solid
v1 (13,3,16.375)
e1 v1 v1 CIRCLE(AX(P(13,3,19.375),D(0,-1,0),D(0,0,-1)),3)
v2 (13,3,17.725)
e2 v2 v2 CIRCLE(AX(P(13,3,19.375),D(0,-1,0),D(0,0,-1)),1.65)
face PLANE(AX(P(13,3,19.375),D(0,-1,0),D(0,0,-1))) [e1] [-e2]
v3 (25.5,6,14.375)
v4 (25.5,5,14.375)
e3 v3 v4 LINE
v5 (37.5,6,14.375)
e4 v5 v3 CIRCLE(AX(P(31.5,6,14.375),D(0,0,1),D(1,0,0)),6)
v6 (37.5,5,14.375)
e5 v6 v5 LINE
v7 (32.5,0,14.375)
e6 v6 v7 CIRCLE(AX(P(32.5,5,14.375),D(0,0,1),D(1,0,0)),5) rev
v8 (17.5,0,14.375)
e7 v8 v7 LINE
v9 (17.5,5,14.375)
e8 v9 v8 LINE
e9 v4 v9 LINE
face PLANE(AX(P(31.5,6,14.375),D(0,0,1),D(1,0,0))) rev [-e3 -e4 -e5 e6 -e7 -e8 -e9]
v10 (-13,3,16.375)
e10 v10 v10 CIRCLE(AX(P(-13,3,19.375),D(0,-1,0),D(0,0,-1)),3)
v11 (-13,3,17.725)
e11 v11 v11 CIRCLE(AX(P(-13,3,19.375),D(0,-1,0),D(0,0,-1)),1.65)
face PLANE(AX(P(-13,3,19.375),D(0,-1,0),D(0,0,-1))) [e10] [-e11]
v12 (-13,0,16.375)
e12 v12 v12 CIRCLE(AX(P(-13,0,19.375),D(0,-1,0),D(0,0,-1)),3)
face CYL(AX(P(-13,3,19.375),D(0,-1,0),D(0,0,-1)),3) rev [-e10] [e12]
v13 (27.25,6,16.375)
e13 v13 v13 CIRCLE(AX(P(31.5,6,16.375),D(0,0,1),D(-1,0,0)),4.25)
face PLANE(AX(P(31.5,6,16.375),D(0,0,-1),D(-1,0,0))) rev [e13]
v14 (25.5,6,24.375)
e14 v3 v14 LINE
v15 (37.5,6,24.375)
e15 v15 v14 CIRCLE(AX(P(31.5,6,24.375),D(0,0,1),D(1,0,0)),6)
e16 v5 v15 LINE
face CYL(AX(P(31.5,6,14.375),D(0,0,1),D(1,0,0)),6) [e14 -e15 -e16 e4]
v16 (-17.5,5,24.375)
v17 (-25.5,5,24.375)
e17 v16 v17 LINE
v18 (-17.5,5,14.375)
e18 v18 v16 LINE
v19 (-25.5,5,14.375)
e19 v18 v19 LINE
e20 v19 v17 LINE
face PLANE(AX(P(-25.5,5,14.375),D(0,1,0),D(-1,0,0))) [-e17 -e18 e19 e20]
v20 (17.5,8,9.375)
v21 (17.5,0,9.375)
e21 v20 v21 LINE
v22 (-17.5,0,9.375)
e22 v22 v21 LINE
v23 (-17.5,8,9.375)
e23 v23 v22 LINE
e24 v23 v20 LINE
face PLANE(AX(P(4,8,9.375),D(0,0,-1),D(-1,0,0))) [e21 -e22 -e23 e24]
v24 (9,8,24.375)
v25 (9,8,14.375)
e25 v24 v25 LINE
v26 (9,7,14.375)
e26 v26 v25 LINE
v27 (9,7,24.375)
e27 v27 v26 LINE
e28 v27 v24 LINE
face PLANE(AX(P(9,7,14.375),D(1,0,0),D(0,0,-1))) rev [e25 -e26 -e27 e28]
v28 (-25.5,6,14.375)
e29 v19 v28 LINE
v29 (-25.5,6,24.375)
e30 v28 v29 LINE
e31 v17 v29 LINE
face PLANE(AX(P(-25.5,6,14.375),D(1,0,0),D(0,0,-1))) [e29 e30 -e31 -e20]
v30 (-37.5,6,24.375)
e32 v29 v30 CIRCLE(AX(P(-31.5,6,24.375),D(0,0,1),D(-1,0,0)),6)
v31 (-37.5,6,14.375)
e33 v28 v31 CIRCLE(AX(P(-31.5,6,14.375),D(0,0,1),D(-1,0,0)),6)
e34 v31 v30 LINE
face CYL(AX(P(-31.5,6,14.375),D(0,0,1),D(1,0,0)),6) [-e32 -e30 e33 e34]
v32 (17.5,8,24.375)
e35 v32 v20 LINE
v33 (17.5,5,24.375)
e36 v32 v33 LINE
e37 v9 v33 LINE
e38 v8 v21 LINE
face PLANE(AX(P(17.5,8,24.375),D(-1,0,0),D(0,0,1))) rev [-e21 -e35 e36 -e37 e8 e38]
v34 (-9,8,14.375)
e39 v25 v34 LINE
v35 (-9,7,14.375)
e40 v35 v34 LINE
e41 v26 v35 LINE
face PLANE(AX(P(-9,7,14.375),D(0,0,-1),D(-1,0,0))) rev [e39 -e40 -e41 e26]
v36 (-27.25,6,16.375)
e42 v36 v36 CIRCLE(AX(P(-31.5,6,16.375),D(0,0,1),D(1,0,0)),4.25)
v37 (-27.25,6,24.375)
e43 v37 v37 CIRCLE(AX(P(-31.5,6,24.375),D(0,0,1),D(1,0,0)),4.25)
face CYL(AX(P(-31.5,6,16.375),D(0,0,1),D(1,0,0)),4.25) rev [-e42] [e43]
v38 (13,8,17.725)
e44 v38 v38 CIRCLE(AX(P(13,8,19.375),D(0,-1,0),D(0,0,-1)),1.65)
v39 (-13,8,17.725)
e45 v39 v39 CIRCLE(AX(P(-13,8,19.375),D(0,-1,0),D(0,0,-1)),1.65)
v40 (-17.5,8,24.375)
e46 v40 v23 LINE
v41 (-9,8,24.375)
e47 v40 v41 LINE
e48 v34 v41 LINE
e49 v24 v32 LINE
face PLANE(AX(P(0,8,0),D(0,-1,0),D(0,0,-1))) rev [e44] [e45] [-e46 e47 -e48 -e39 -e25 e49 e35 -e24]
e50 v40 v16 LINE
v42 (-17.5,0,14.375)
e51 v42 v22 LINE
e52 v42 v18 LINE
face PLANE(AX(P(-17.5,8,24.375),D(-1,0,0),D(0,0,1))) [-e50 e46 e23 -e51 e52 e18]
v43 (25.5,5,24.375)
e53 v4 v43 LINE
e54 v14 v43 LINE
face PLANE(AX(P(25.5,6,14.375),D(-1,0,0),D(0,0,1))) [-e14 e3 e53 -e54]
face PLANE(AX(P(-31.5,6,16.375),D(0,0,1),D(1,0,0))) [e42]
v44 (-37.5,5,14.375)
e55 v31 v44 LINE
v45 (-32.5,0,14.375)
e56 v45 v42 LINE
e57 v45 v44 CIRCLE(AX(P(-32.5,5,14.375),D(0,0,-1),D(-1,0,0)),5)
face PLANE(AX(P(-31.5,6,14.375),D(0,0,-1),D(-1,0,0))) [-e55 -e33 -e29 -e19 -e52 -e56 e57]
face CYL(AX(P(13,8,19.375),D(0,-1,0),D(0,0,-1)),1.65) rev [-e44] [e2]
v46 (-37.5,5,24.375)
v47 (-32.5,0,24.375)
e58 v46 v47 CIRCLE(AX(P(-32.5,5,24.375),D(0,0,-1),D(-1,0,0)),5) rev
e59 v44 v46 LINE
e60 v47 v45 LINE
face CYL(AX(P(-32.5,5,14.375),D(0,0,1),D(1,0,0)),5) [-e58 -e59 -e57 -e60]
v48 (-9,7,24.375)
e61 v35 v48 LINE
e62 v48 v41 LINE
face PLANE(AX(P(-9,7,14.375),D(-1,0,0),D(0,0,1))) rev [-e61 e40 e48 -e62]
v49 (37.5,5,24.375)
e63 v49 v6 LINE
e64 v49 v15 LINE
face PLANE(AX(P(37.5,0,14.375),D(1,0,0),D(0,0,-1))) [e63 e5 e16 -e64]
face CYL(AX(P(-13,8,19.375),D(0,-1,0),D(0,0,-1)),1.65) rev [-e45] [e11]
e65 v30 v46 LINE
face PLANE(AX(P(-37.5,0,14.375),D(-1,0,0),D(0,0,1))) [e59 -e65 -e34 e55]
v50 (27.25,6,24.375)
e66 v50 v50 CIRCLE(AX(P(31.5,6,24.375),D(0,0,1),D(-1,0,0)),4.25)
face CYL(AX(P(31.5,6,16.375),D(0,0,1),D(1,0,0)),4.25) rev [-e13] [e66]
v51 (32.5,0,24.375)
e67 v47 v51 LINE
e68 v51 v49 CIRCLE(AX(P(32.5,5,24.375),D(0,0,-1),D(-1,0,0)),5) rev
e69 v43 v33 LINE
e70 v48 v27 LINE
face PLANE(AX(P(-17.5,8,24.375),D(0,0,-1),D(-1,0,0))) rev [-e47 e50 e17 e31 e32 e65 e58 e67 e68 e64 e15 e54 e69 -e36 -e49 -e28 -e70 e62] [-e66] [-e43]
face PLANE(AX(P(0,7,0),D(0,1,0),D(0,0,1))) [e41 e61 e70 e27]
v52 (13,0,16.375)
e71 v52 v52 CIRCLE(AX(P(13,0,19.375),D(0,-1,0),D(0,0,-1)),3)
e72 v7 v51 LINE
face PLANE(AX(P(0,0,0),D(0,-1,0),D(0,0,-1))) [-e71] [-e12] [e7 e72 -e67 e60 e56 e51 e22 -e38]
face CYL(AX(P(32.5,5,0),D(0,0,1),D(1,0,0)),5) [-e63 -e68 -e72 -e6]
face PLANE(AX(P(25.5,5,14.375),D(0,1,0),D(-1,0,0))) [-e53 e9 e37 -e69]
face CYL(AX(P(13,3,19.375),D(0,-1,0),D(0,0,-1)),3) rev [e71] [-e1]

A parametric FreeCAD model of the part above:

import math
import FreeCAD as App
import Part
import Sketcher

V = App.Vector
Q = App.Units.Quantity


def edges_at(feature, points):
    """Names of the edges that pass closest to the given points."""
    edges = feature.Shape.Edges
    near = lambda p: min(range(len(edges)), key=lambda i: edges[i].distToShape(Part.Vertex(*p))[0])
    return sorted({f"Edge{near(p) + 1}" for p in points})

doc = App.newDocument("Part")
body = doc.addObject("PartDesign::Body", "Body")

# Sketch on XZ plane
sketch1 = doc.addObject("Sketcher::SketchObject", "Sketch")
body.addObject(sketch1)
sketch1.AttachmentSupport = (doc.XZ_Plane, [""])
sketch1.MapMode = "FlatFace"
sketch1.addGeometry(Part.LineSegment(V(-8.5, -1.4, 0), V(-8.5, 1.4, 0)), False)
sketch1.addGeometry(Part.LineSegment(V(-8.5, 1.4, 0), V(8.5, 1.4, 0)), False)
sketch1.addGeometry(Part.LineSegment(V(8.5, 1.4, 0), V(8.5, -1.4, 0)), False)
sketch1.addGeometry(Part.LineSegment(V(8.5, -1.4, 0), V(-8.5, -1.4, 0)), False)
sketch1.addConstraint(Sketcher.Constraint("Coincident", 0, 2, 1, 1))
sketch1.addConstraint(Sketcher.Constraint("Coincident", 1, 2, 2, 1))
sketch1.addConstraint(Sketcher.Constraint("Coincident", 2, 2, 3, 1))
sketch1.addConstraint(Sketcher.Constraint("Coincident", 3, 2, 0, 1))
sketch1.addConstraint(Sketcher.Constraint("Vertical", 0))
sketch1.addConstraint(Sketcher.Constraint("Horizontal", 1))
sketch1.addConstraint(Sketcher.Constraint("Vertical", 2))
sketch1.addConstraint(Sketcher.Constraint("Horizontal", 3))
sketch1.addConstraint(Sketcher.Constraint("Symmetric", 0, 2, 2, 2, -1, 1))
sketch1.addConstraint(Sketcher.Constraint("DistanceX", 1, 1, 1, 2, Q("17 mm")))
sketch1.addConstraint(Sketcher.Constraint("DistanceY", 0, 1, 0, 2, Q("2.75 mm")))
pad1 = doc.addObject("PartDesign::Pad", "Pad")
body.addObject(pad1)
pad1.Profile = sketch1
pad1.Length = 8
pad1.Reversed = True

# Sketch on XZ plane
sketch2 = doc.addObject("Sketcher::SketchObject", "Sketch001")
body.addObject(sketch2)
sketch2.AttachmentSupport = (doc.XZ_Plane, [""])
sketch2.MapMode = "FlatFace"
sketch2.addGeometry(Part.LineSegment(V(18, 9, 0), V(4, 9, 0)), False)
sketch2.addGeometry(Part.LineSegment(V(4, 9, 0), V(4, 1, 0)), False)
sketch2.addGeometry(Part.LineSegment(V(4, 1, 0), V(-4, 1, 0)), False)
sketch2.addGeometry(Part.LineSegment(V(-4, 1, 0), V(-4, 9, 0)), False)
sketch2.addGeometry(Part.LineSegment(V(-4, 9, 0), V(-18, 9, 0)), False)
sketch2.addGeometry(Part.LineSegment(V(-18, 9, 0), V(-18, 24, 0)), False)
sketch2.addGeometry(Part.LineSegment(V(-18, 24, 0), V(18, 24, 0)), False)
sketch2.addGeometry(Part.LineSegment(V(18, 24, 0), V(18, 9, 0)), False)
sketch2.addConstraint(Sketcher.Constraint("Coincident", 0, 2, 1, 1))
sketch2.addConstraint(Sketcher.Constraint("Coincident", 1, 2, 2, 1))
sketch2.addConstraint(Sketcher.Constraint("Coincident", 2, 2, 3, 1))
sketch2.addConstraint(Sketcher.Constraint("Coincident", 3, 2, 4, 1))
sketch2.addConstraint(Sketcher.Constraint("Coincident", 4, 2, 5, 1))
sketch2.addConstraint(Sketcher.Constraint("Coincident", 5, 2, 6, 1))
sketch2.addConstraint(Sketcher.Constraint("Coincident", 6, 2, 7, 1))
sketch2.addConstraint(Sketcher.Constraint("Coincident", 7, 2, 0, 1))
sketch2.addConstraint(Sketcher.Constraint("Horizontal", 0))
sketch2.addConstraint(Sketcher.Constraint("Vertical", 1))
sketch2.addConstraint(Sketcher.Constraint("Horizontal", 2))
sketch2.addConstraint(Sketcher.Constraint("Vertical", 3))
sketch2.addConstraint(Sketcher.Constraint("Horizontal", 4))
sketch2.addConstraint(Sketcher.Constraint("Vertical", 5))
sketch2.addConstraint(Sketcher.Constraint("Horizontal", 6))
sketch2.addConstraint(Sketcher.Constraint("Vertical", 7))
sketch2.addConstraint(Sketcher.Constraint("Symmetric", 0, 2, 3, 2, -2))
sketch2.addConstraint(Sketcher.Constraint("Equal", 0, 4))
sketch2.addConstraint(Sketcher.Constraint("Equal", 2, 1))
sketch2.addConstraint(Sketcher.Constraint("DistanceX", 2, 2, 2, 1, Q("8 mm")))
sketch2.addConstraint(Sketcher.Constraint("DistanceX", 6, 1, 6, 2, Q("35 mm")))
sketch2.addConstraint(Sketcher.Constraint("DistanceY", 5, 1, 5, 2, Q("15 mm")))
sketch2.addConstraint(Sketcher.Constraint("DistanceY", -1, 1, 0, 2, Q("9.375 mm")))
pad2 = doc.addObject("PartDesign::Pad", "Pad001")
body.addObject(pad2)
pad2.Profile = sketch2
pad2.Length = 8
pad2.Reversed = True

# Sketch on XZ plane
sketch3 = doc.addObject("Sketcher::SketchObject", "Sketch002")
body.addObject(sketch3)
sketch3.AttachmentSupport = (doc.XZ_Plane, [""])
sketch3.MapMode = "FlatFace"
sketch3.addGeometry(Part.Circle(V(13, 19.4, 0), V(0, 0, 1), 3), False)
sketch3.addGeometry(Part.Circle(V(-13, 19.4, 0), V(0, 0, 1), 3), False)
sketch3.addConstraint(Sketcher.Constraint("Equal", 0, 1))
sketch3.addConstraint(Sketcher.Constraint("Symmetric", 0, 3, 1, 3, -2))
sketch3.addConstraint(Sketcher.Constraint("Diameter", 0, Q("6 mm")))
sketch3.addConstraint(Sketcher.Constraint("DistanceX", -1, 1, 0, 3, Q("13 mm")))
sketch3.addConstraint(Sketcher.Constraint("DistanceY", -1, 1, 0, 3, Q("19.375 mm")))
pocket1 = doc.addObject("PartDesign::Pocket", "Pocket")
body.addObject(pocket1)
pocket1.Profile = sketch3
pocket1.Length = 3

# Sketch on XZ plane
sketch4 = doc.addObject("Sketcher::SketchObject", "Sketch003")
body.addObject(sketch4)
sketch4.AttachmentSupport = (doc.XZ_Plane, [""])
sketch4.MapMode = "FlatFace"
sketch4.addGeometry(Part.Circle(V(-13, 19.4, 0), V(0, 0, 1), 1.6), False)
sketch4.addGeometry(Part.Circle(V(13, 19.4, 0), V(0, 0, 1), 1.6), False)
sketch4.addConstraint(Sketcher.Constraint("Equal", 0, 1))
sketch4.addConstraint(Sketcher.Constraint("Symmetric", 0, 3, 1, 3, -2))
sketch4.addConstraint(Sketcher.Constraint("Diameter", 0, Q("3.3 mm")))
sketch4.addConstraint(Sketcher.Constraint("DistanceX", 0, 3, -1, 1, Q("13 mm")))
sketch4.addConstraint(Sketcher.Constraint("DistanceY", -1, 1, 0, 3, Q("19.375 mm")))
pocket2 = doc.addObject("PartDesign::Pocket", "Pocket001")
body.addObject(pocket2)
pocket2.Profile = sketch4
pocket2.Length = 8
doc.recompute()

fillet = doc.addObject("PartDesign::Fillet", "Fillet")
body.addObject(fillet)
fillet.Base = (pocket2, edges_at(pocket2, [(-4, 4, 9.375)]))
fillet.Radius = 2
doc.recompute()

fillet2 = doc.addObject("PartDesign::Fillet", "Fillet001")
body.addObject(fillet2)
fillet2.Base = (fillet, edges_at(fillet, [(4, 4, 9.375)]))
fillet2.Radius = 2
doc.recompute()

fillet3 = doc.addObject("PartDesign::Fillet", "Fillet002")
body.addObject(fillet3)
fillet3.Base = (fillet2, edges_at(fillet2, [(-4, 4, 1.375)]))
fillet3.Radius = 2

# Sketch on XZ plane
sketch5 = doc.addObject("Sketcher::SketchObject", "Sketch004")
body.addObject(sketch5)
sketch5.AttachmentSupport = (doc.XZ_Plane, [""])
sketch5.MapMode = "FlatFace"
sketch5.AttachmentOffset = App.Placement(V(0, 0, -8), App.Rotation())
sketch5.addGeometry(Part.LineSegment(V(-9, 14, 0), V(-9, 24, 0)), False)
sketch5.addGeometry(Part.LineSegment(V(-9, 24, 0), V(9, 24, 0)), False)
sketch5.addGeometry(Part.LineSegment(V(9, 24, 0), V(9, 14, 0)), False)
sketch5.addGeometry(Part.LineSegment(V(9, 14, 0), V(-9, 14, 0)), False)
sketch5.addConstraint(Sketcher.Constraint("Coincident", 0, 2, 1, 1))
sketch5.addConstraint(Sketcher.Constraint("Coincident", 1, 2, 2, 1))
sketch5.addConstraint(Sketcher.Constraint("Coincident", 2, 2, 3, 1))
sketch5.addConstraint(Sketcher.Constraint("Coincident", 3, 2, 0, 1))
sketch5.addConstraint(Sketcher.Constraint("Vertical", 0))
sketch5.addConstraint(Sketcher.Constraint("Horizontal", 1))
sketch5.addConstraint(Sketcher.Constraint("Vertical", 2))
sketch5.addConstraint(Sketcher.Constraint("Horizontal", 3))
sketch5.addConstraint(Sketcher.Constraint("DistanceX", 1, 1, 1, 2, Q("18 mm")))
sketch5.addConstraint(Sketcher.Constraint("DistanceY", 0, 1, 0, 2, Q("10 mm")))
sketch5.addConstraint(Sketcher.Constraint("DistanceX", 0, 2, -1, 1, Q("9 mm")))
sketch5.addConstraint(Sketcher.Constraint("DistanceY", -1, 1, 0, 2, Q("24.375 mm")))
pocket3 = doc.addObject("PartDesign::Pocket", "Pocket002")
body.addObject(pocket3)
pocket3.Profile = sketch5
pocket3.Length = 1
pocket3.Reversed = True
doc.recompute()

fillet4 = doc.addObject("PartDesign::Fillet", "Fillet003")
body.addObject(fillet4)
fillet4.Base = (pocket3, edges_at(pocket3, [
    (8.5, 8, 0),
    (-8.5, 8, 0),
    (8.5, 0, 0),
    (-8.5, 0, 0),
]))
fillet4.Radius = 1.4

# Sketch on XY plane
sketch6 = doc.addObject("Sketcher::SketchObject", "Sketch005")
body.addObject(sketch6)
sketch6.AttachmentSupport = (doc.XY_Plane, [""])
sketch6.MapMode = "FlatFace"
sketch6.AttachmentOffset = App.Placement(V(0, 0, 24.375), App.Rotation())
sketch6.addGeometry(Part.LineSegment(V(-37.5, 0, 0), V(-17.5, 0, 0)), False)
sketch6.addGeometry(Part.LineSegment(V(-17.5, 0, 0), V(-17.5, 5, 0)), False)
sketch6.addGeometry(Part.LineSegment(V(-17.5, 5, 0), V(-25.5, 5, 0)), False)
sketch6.addGeometry(Part.LineSegment(V(-25.5, 5, 0), V(-25.5, 6, 0)), False)
sketch6.addGeometry(Part.ArcOfCircle(Part.Circle(V(-31.5, 6, 0), V(0, 0, 1), 6), math.radians(0), math.radians(180)), False)
sketch6.addGeometry(Part.LineSegment(V(-37.5, 6, 0), V(-37.5, 0, 0)), False)
sketch6.addGeometry(Part.LineSegment(V(25.5, 6, 0), V(25.5, 5, 0)), False)
sketch6.addGeometry(Part.LineSegment(V(25.5, 5, 0), V(17.5, 5, 0)), False)
sketch6.addGeometry(Part.LineSegment(V(17.5, 5, 0), V(17.5, 0, 0)), False)
sketch6.addGeometry(Part.LineSegment(V(17.5, 0, 0), V(37.5, 0, 0)), False)
sketch6.addGeometry(Part.LineSegment(V(37.5, 0, 0), V(37.5, 6, 0)), False)
sketch6.addGeometry(Part.ArcOfCircle(Part.Circle(V(31.5, 6, 0), V(0, 0, 1), 6), math.radians(0), math.radians(180)), False)
sketch6.addConstraint(Sketcher.Constraint("Coincident", 0, 2, 1, 1))
sketch6.addConstraint(Sketcher.Constraint("Coincident", 1, 2, 2, 1))
sketch6.addConstraint(Sketcher.Constraint("Coincident", 2, 2, 3, 1))
sketch6.addConstraint(Sketcher.Constraint("Tangent", 3, 2, 4, 1))
sketch6.addConstraint(Sketcher.Constraint("Tangent", 4, 2, 5, 1))
sketch6.addConstraint(Sketcher.Constraint("Coincident", 5, 2, 0, 1))
sketch6.addConstraint(Sketcher.Constraint("Coincident", 6, 2, 7, 1))
sketch6.addConstraint(Sketcher.Constraint("Coincident", 7, 2, 8, 1))
sketch6.addConstraint(Sketcher.Constraint("Coincident", 8, 2, 9, 1))
sketch6.addConstraint(Sketcher.Constraint("Coincident", 9, 2, 10, 1))
sketch6.addConstraint(Sketcher.Constraint("Tangent", 10, 2, 11, 1))
sketch6.addConstraint(Sketcher.Constraint("Tangent", 11, 2, 6, 1))
sketch6.addConstraint(Sketcher.Constraint("Horizontal", 0))
sketch6.addConstraint(Sketcher.Constraint("Vertical", 1))
sketch6.addConstraint(Sketcher.Constraint("Horizontal", 2))
sketch6.addConstraint(Sketcher.Constraint("Vertical", 3))
sketch6.addConstraint(Sketcher.Constraint("Vertical", 5))
sketch6.addConstraint(Sketcher.Constraint("Vertical", 6))
sketch6.addConstraint(Sketcher.Constraint("Horizontal", 7))
sketch6.addConstraint(Sketcher.Constraint("Vertical", 8))
sketch6.addConstraint(Sketcher.Constraint("Horizontal", 9))
sketch6.addConstraint(Sketcher.Constraint("Vertical", 10))
sketch6.addConstraint(Sketcher.Constraint("Equal", 4, 11))
sketch6.addConstraint(Sketcher.Constraint("Symmetric", 0, 2, 8, 2, -1, 1))
sketch6.addConstraint(Sketcher.Constraint("Symmetric", 4, 3, 11, 3, -2))
sketch6.addConstraint(Sketcher.Constraint("PointOnObject", 0, 2, -1))
sketch6.addConstraint(Sketcher.Constraint("Horizontal", 2, 2, 6, 2))
sketch6.addConstraint(Sketcher.Constraint("Radius", 4, Q("6 mm")))
sketch6.addConstraint(Sketcher.Constraint("DistanceX", 0, 1, 0, 2, Q("20 mm")))
sketch6.addConstraint(Sketcher.Constraint("DistanceY", 1, 1, 1, 2, Q("5 mm")))
sketch6.addConstraint(Sketcher.Constraint("DistanceY", 3, 1, 3, 2, Q("1 mm")))
sketch6.addConstraint(Sketcher.Constraint("DistanceX", 4, 3, 11, 3, Q("63 mm")))
pad3 = doc.addObject("PartDesign::Pad", "Pad002")
body.addObject(pad3)
pad3.Profile = sketch6
pad3.Length = 10
pad3.Reversed = True

# Sketch on XY plane
sketch7 = doc.addObject("Sketcher::SketchObject", "Sketch006")
body.addObject(sketch7)
sketch7.AttachmentSupport = (doc.XY_Plane, [""])
sketch7.MapMode = "FlatFace"
sketch7.AttachmentOffset = App.Placement(V(0, 0, 24.375), App.Rotation())
sketch7.addGeometry(Part.Circle(V(-31.5, 6, 0), V(0, 0, 1), 4.2), False)
sketch7.addGeometry(Part.Circle(V(31.5, 6, 0), V(0, 0, 1), 4.2), False)
sketch7.addConstraint(Sketcher.Constraint("Equal", 0, 1))
sketch7.addConstraint(Sketcher.Constraint("Symmetric", 0, 3, 1, 3, -2))
sketch7.addConstraint(Sketcher.Constraint("Diameter", 0, Q("8.5 mm")))
sketch7.addConstraint(Sketcher.Constraint("DistanceY", -1, 1, 0, 3, Q("6 mm")))
sketch7.addConstraint(Sketcher.Constraint("DistanceX", 0, 3, 1, 3, Q("63 mm")))
pocket4 = doc.addObject("PartDesign::Pocket", "Pocket003")
body.addObject(pocket4)
pocket4.Profile = sketch7
pocket4.Length = 8
doc.recompute()

fillet5 = doc.addObject("PartDesign::Fillet", "Fillet004")
body.addObject(fillet5)
fillet5.Base = (pocket4, edges_at(pocket4, [(4, 4, 1.375)]))
fillet5.Radius = 2
doc.recompute()

fillet6 = doc.addObject("PartDesign::Fillet", "Fillet005")
body.addObject(fillet6)
fillet6.Base = (fillet5, edges_at(fillet5, [(-37.5, 0, 19.375), (37.5, 0, 19.375)]))
fillet6.Radius = 5

# Sketch on XZ plane
sketch8 = doc.addObject("Sketcher::SketchObject", "Sketch007")
body.addObject(sketch8)
sketch8.AttachmentSupport = (doc.XZ_Plane, [""])
sketch8.MapMode = "FlatFace"
sketch8.AttachmentOffset = App.Placement(V(0, 0, -8), App.Rotation())
sketch8.addGeometry(Part.LineSegment(V(-18, -4, 0), V(-18, 9, 0)), False)
sketch8.addGeometry(Part.LineSegment(V(-18, 9, 0), V(18, 9, 0)), False)
sketch8.addGeometry(Part.LineSegment(V(18, 9, 0), V(18, -4, 0)), False)
sketch8.addGeometry(Part.LineSegment(V(18, -4, 0), V(-18, -4, 0)), False)
sketch8.addConstraint(Sketcher.Constraint("Coincident", 0, 2, 1, 1))
sketch8.addConstraint(Sketcher.Constraint("Coincident", 1, 2, 2, 1))
sketch8.addConstraint(Sketcher.Constraint("Coincident", 2, 2, 3, 1))
sketch8.addConstraint(Sketcher.Constraint("Coincident", 3, 2, 0, 1))
sketch8.addConstraint(Sketcher.Constraint("Vertical", 0))
sketch8.addConstraint(Sketcher.Constraint("Horizontal", 1))
sketch8.addConstraint(Sketcher.Constraint("Vertical", 2))
sketch8.addConstraint(Sketcher.Constraint("Horizontal", 3))
sketch8.addConstraint(Sketcher.Constraint("DistanceX", 1, 1, 1, 2, Q("35 mm")))
sketch8.addConstraint(Sketcher.Constraint("DistanceX", 0, 2, -1, 1, Q("17.5 mm")))
sketch8.addConstraint(Sketcher.Constraint("DistanceY", -1, 1, 0, 2, Q("9.375 mm")))
sketch8.addConstraint(Sketcher.Constraint("DistanceY", 0, 1, 0, 2, Q("13.552625 mm")))
pocket5 = doc.addObject("PartDesign::Pocket", "Pocket004")
body.addObject(pocket5)
pocket5.Profile = sketch8
pocket5.Type = "ThroughAll"
pocket5.Reversed = True

doc.recompute()
